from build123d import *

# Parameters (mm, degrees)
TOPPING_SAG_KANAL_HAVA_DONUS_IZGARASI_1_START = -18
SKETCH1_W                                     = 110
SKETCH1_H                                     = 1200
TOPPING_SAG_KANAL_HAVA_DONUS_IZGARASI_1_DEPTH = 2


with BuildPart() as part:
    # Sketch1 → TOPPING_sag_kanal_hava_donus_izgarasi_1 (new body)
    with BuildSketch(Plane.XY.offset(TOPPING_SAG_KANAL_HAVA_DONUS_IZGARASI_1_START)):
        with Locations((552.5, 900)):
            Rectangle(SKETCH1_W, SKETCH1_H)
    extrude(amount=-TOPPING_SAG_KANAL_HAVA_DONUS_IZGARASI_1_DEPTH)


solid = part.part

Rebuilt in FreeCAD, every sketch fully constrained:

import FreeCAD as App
import Part
import Sketcher
from FreeCAD import Vector
Q = App.Units.Quantity

doc = App.newDocument("Part")
body = doc.addObject("PartDesign::Body", "Body")

# Sketch on XY plane
sketch1 = body.newObject("Sketcher::SketchObject", "Sketch")
sketch1.AttachmentSupport = (doc.getObject("XY_Plane"), [""])
sketch1.MapMode = "FlatFace"
sketch1.AttachmentOffset = App.Placement(Vector(0, 0, -18), App.Rotation())
sketch1.addGeometry(Part.LineSegment(Vector(498, 1500, 0), Vector(498, 300, 0)), False)
sketch1.addGeometry(Part.LineSegment(Vector(498, 300, 0), Vector(608, 300, 0)), False)
sketch1.addGeometry(Part.LineSegment(Vector(608, 300, 0), Vector(608, 1500, 0)), False)
sketch1.addGeometry(Part.LineSegment(Vector(608, 1500, 0), Vector(498, 1500, 0)), False)
sketch1.addConstraint(Sketcher.Constraint("Coincident", 0, 2, 1, 1))
sketch1.addConstraint(Sketcher.Constraint("Coincident", 1, 2, 2, 1))
sketch1.addConstraint(Sketcher.Constraint("Coincident", 2, 2, 3, 1))
sketch1.addConstraint(Sketcher.Constraint("Coincident", 3, 2, 0, 1))
sketch1.addConstraint(Sketcher.Constraint("Vertical", 0))
sketch1.addConstraint(Sketcher.Constraint("Horizontal", 1))
sketch1.addConstraint(Sketcher.Constraint("Vertical", 2))
sketch1.addConstraint(Sketcher.Constraint("Horizontal", 3))
sketch1.addConstraint(Sketcher.Constraint("DistanceX", 1, 1, 1, 2, Q("110 mm")))
sketch1.addConstraint(Sketcher.Constraint("DistanceY", 0, 2, 0, 1, Q("1200 mm")))
sketch1.addConstraint(Sketcher.Constraint("DistanceY", -1, 1, 0, 2, Q("300 mm")))
sketch1.addConstraint(Sketcher.Constraint("DistanceX", -1, 1, 0, 2, Q("497.5 mm")))
pad1 = body.newObject("PartDesign::Pad", "Pad")
pad1.Profile = sketch1
pad1.Length = 2
pad1.Reversed = True

doc.recompute()
